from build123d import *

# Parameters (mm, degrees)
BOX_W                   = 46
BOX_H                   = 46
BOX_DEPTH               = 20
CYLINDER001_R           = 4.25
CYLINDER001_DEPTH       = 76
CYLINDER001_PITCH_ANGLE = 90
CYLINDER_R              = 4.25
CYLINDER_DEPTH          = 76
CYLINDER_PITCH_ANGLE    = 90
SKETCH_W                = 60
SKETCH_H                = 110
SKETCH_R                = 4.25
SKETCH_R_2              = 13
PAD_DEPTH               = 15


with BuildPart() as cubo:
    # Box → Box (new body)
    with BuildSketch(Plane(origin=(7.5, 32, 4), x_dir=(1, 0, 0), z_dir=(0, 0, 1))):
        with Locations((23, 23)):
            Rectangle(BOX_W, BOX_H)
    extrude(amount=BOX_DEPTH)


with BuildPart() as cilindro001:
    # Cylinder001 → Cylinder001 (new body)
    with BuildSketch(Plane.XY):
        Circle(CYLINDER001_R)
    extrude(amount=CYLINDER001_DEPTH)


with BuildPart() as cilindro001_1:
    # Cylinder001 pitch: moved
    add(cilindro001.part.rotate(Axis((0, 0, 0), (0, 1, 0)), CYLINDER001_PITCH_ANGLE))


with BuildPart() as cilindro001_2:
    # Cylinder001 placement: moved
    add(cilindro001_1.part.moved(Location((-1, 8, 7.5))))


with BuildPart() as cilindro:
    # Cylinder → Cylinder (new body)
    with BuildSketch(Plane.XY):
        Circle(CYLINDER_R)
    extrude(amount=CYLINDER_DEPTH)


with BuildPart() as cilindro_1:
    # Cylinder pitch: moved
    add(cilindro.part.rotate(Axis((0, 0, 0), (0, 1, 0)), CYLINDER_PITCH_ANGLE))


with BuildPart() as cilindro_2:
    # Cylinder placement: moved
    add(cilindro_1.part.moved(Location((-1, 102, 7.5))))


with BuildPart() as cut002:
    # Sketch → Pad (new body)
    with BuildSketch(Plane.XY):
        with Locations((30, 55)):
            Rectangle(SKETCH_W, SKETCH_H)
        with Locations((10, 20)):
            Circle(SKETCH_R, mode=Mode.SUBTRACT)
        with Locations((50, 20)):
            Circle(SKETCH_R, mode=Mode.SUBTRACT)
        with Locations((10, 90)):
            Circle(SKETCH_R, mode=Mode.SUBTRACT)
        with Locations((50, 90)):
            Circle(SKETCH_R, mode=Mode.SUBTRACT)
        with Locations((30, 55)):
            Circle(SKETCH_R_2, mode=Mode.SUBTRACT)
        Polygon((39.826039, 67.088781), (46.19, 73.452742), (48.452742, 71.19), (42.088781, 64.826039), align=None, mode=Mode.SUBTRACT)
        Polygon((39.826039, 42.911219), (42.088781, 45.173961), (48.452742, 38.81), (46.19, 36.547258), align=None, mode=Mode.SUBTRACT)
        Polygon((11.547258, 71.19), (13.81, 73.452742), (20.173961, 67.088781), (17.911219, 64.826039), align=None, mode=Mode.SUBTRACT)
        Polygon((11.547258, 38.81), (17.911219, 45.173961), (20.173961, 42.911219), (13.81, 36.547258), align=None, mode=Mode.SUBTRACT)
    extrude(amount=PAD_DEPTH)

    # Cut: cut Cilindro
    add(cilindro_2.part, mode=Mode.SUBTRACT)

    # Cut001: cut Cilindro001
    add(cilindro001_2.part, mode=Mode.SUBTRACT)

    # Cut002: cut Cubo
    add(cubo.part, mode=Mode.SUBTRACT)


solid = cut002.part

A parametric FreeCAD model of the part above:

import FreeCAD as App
import Part
import Sketcher

V = App.Vector
Q = App.Units.Quantity

doc = App.newDocument("Part")
params = doc.addObject("Spreadsheet::Sheet", "Params")
for row, (alias, value) in enumerate([
    ("sketch1_width", "46 mm"),
    ("pad1_length", "20 mm"),
    ("sketch2_diameter", "8.5 mm"),
    ("pad2_length", "76 mm"),
    ("sketch3_diameter", "8.5 mm"),
    ("pad3_length", "76 mm"),
    ("sketch4_diameter", "26 mm"),
    ("sketch4_diameter2", "8.5 mm"),
    ("sketch4_width", "60 mm"),
    ("sketch4_height", "110 mm"),
    ("sketch4_length", "9 mm"),
    ("pad4_length", "15 mm"),
], start=1):
    params.set(f"A{row}", alias)
    params.set(f"B{row}", "=" + value)
    params.setAlias(f"B{row}", alias)

body = doc.addObject("PartDesign::Body", "Body")

# Sketch on XY plane
sketch1 = body.newObject("Sketcher::SketchObject", "Sketch")
sketch1.AttachmentSupport = (doc.getObject("XY_Plane"), [""])
sketch1.MapMode = "FlatFace"
sketch1.AttachmentOffset = App.Placement(V(0, 0, 4), App.Rotation())
sketch1.addGeometry([
    Part.LineSegment(V(8, 78, 0), V(8, 32, 0)),
    Part.LineSegment(V(8, 32, 0), V(54, 32, 0)),
    Part.LineSegment(V(54, 32, 0), V(54, 78, 0)),
    Part.LineSegment(V(54, 78, 0), V(8, 78, 0)),
], False)
sketch1.addConstraint([
    Sketcher.Constraint("Coincident", 0, 2, 1, 1),
    Sketcher.Constraint("Coincident", 1, 2, 2, 1),
    Sketcher.Constraint("Coincident", 2, 2, 3, 1),
    Sketcher.Constraint("Coincident", 3, 2, 0, 1),
    Sketcher.Constraint("Vertical", 0),
    Sketcher.Constraint("Horizontal", 1),
    Sketcher.Constraint("Vertical", 2),
    Sketcher.Constraint("Horizontal", 3),
    Sketcher.Constraint("Equal", 3, 0),
    Sketcher.Constraint("DistanceX", 1, 1, 1, 2, Q("46 mm")),
    Sketcher.Constraint("DistanceY", -1, 1, 0, 2, Q("32 mm")),
    Sketcher.Constraint("DistanceX", -1, 1, 0, 2, Q("7.5 mm")),
])
sketch1.setExpression("Constraints[9]", "Params.sketch1_width")
pad1 = body.newObject("PartDesign::Pad", "Pad")
pad1.Profile = sketch1
pad1.setExpression("Length", "Params.pad1_length")
body2 = doc.addObject("PartDesign::Body", "Body001")

# Sketch on XY plane
sketch2 = body2.newObject("Sketcher::SketchObject", "Sketch001")
sketch2.AttachmentSupport = (doc.getObject("XY_Plane001"), [""])
sketch2.MapMode = "FlatFace"
sketch2.addGeometry(Part.Circle(V(0, 0, 0), V(0, 0, 1), 4.2), False)
sketch2.addConstraint([
    Sketcher.Constraint("Coincident", 0, 3, -1, 1),
    Sketcher.Constraint("Diameter", 0, Q("8.5 mm")),
])
sketch2.setExpression("Constraints[1]", "Params.sketch2_diameter")
pad2 = body2.newObject("PartDesign::Pad", "Pad001")
pad2.Profile = sketch2
pad2.setExpression("Length", "Params.pad2_length")
body3 = doc.addObject("PartDesign::Body", "Body002")
doc.recompute()

body2.Placement = App.Placement(V(0, 0, 0), App.Rotation(V(0, 1, 0), 90))
boolean = body3.newObject("PartDesign::Boolean", "Boolean")
boolean.Type = "Fuse"
boolean.addObjects([body2])
body4 = doc.addObject("PartDesign::Body", "Body003")
doc.recompute()

body3.Placement = App.Placement(V(-1, 8, 7.5), App.Rotation(V(0, 0, 1), 0))
boolean2 = body4.newObject("PartDesign::Boolean", "Boolean001")
boolean2.Type = "Fuse"
boolean2.addObjects([body3])
body5 = doc.addObject("PartDesign::Body", "Body004")

# Sketch on XY plane
sketch3 = body5.newObject("Sketcher::SketchObject", "Sketch002")
sketch3.AttachmentSupport = (doc.getObject("XY_Plane004"), [""])
sketch3.MapMode = "FlatFace"
sketch3.addGeometry(Part.Circle(V(0, 0, 0), V(0, 0, 1), 4.2), False)
sketch3.addConstraint([
    Sketcher.Constraint("Coincident", 0, 3, -1, 1),
    Sketcher.Constraint("Diameter", 0, Q("8.5 mm")),
])
sketch3.setExpression("Constraints[1]", "Params.sketch3_diameter")
pad3 = body5.newObject("PartDesign::Pad", "Pad002")
pad3.Profile = sketch3
pad3.setExpression("Length", "Params.pad3_length")
body6 = doc.addObject("PartDesign::Body", "Body005")
doc.recompute()

body5.Placement = App.Placement(V(0, 0, 0), App.Rotation(V(0, 1, 0), 90))
boolean3 = body6.newObject("PartDesign::Boolean", "Boolean002")
boolean3.Type = "Fuse"
boolean3.addObjects([body5])
body7 = doc.addObject("PartDesign::Body", "Body006")
doc.recompute()

body6.Placement = App.Placement(V(-1, 102, 7.5), App.Rotation(V(0, 0, 1), 0))
boolean4 = body7.newObject("PartDesign::Boolean", "Boolean003")
boolean4.Type = "Fuse"
boolean4.addObjects([body6])
body8 = doc.addObject("PartDesign::Body", "Body007")

# Sketch on XY plane
sketch4 = body8.newObject("Sketcher::SketchObject", "Sketch003")
sketch4.AttachmentSupport = (doc.getObject("XY_Plane007"), [""])
sketch4.MapMode = "FlatFace"
sketch4.addGeometry([
    Part.LineSegment(V(0, 110, 0), V(0, 0, 0)),  # 0
    Part.LineSegment(V(0, 0, 0), V(60, 0, 0)),  # 1
    Part.LineSegment(V(60, 0, 0), V(60, 110, 0)),  # 2
    Part.LineSegment(V(60, 110, 0), V(0, 110, 0)),  # 3
    Part.Circle(V(10, 20, 0), V(0, 0, 1), 4.2),  # 4
    Part.LineSegment(V(13.8, 36.5, 0), V(11.5, 38.8, 0)),  # 5
    Part.LineSegment(V(11.5, 38.8, 0), V(17.9, 45.2, 0)),  # 6
    Part.LineSegment(V(17.9, 45.2, 0), V(20.2, 42.9, 0)),  # 7
    Part.LineSegment(V(20.2, 42.9, 0), V(13.8, 36.5, 0)),  # 8
    Part.Circle(V(50, 20, 0), V(0, 0, 1), 4.2),  # 9
    Part.LineSegment(V(46.2, 36.5, 0), V(39.8, 42.9, 0)),  # 10
    Part.LineSegment(V(39.8, 42.9, 0), V(42.1, 45.2, 0)),  # 11
    Part.LineSegment(V(42.1, 45.2, 0), V(48.5, 38.8, 0)),  # 12
    Part.LineSegment(V(48.5, 38.8, 0), V(46.2, 36.5, 0)),  # 13
    Part.LineSegment(V(17.9, 64.8, 0), V(11.5, 71.2, 0)),  # 14
    Part.LineSegment(V(11.5, 71.2, 0), V(13.8, 73.5, 0)),  # 15
    Part.LineSegment(V(13.8, 73.5, 0), V(20.2, 67.1, 0)),  # 16
    Part.LineSegment(V(20.2, 67.1, 0), V(17.9, 64.8, 0)),  # 17
    Part.Circle(V(10, 90, 0), V(0, 0, 1), 4.2),  # 18
    Part.Circle(V(30, 55, 0), V(0, 0, 1), 13),  # 19
    Part.LineSegment(V(42.1, 64.8, 0), V(39.8, 67.1, 0)),  # 20
    Part.LineSegment(V(39.8, 67.1, 0), V(46.2, 73.5, 0)),  # 21
    Part.LineSegment(V(46.2, 73.5, 0), V(48.5, 71.2, 0)),  # 22
    Part.LineSegment(V(48.5, 71.2, 0), V(42.1, 64.8, 0)),  # 23
    Part.Circle(V(50, 90, 0), V(0, 0, 1), 4.2),  # 24
], False)
sketch4.addConstraint([
    Sketcher.Constraint("Coincident", 0, 2, 1, 1),
    Sketcher.Constraint("Coincident", 1, 2, 2, 1),
    Sketcher.Constraint("Coincident", 2, 2, 3, 1),
    Sketcher.Constraint("Coincident", 3, 2, 0, 1),
    Sketcher.Constraint("Coincident", 5, 2, 6, 1),
    Sketcher.Constraint("Coincident", 6, 2, 7, 1),
    Sketcher.Constraint("Coincident", 7, 2, 8, 1),
    Sketcher.Constraint("Coincident", 8, 2, 5, 1),
    Sketcher.Constraint("Coincident", 10, 2, 11, 1),
    Sketcher.Constraint("Coincident", 11, 2, 12, 1),
    Sketcher.Constraint("Coincident", 12, 2, 13, 1),
    Sketcher.Constraint("Coincident", 13, 2, 10, 1),
    Sketcher.Constraint("Coincident", 14, 2, 15, 1),
    Sketcher.Constraint("Coincident", 15, 2, 16, 1),
    Sketcher.Constraint("Coincident", 16, 2, 17, 1),
    Sketcher.Constraint("Coincident", 17, 2, 14, 1),
    Sketcher.Constraint("Coincident", 20, 2, 21, 1),
    Sketcher.Constraint("Coincident", 21, 2, 22, 1),
    Sketcher.Constraint("Coincident", 22, 2, 23, 1),
    Sketcher.Constraint("Coincident", 23, 2, 20, 1),
    Sketcher.Constraint("Vertical", 0),
    Sketcher.Constraint("Horizontal", 1),
    Sketcher.Constraint("Vertical", 2),
    Sketcher.Constraint("Horizontal", 3),
    Sketcher.Constraint("Coincident", 0, 2, -1, 1),
    Sketcher.Constraint("Equal", 4, 9),
    Sketcher.Constraint("Equal", 9, 18),
    Sketcher.Constraint("Equal", 18, 24),
    Sketcher.Constraint("Perpendicular", 5, 6),
    Sketcher.Constraint("Perpendicular", 6, 7),
    Sketcher.Constraint("Perpendicular", 7, 8),
    Sketcher.Constraint("Perpendicular", 8, 10),
    Sketcher.Constraint("Perpendicular", 10, 11),
    Sketcher.Constraint("Perpendicular", 11, 12),
    Sketcher.Constraint("Perpendicular", 12, 13),
    Sketcher.Constraint("Perpendicular", 13, 14),
    Sketcher.Constraint("Perpendicular", 14, 15),
    Sketcher.Constraint("Perpendicular", 15, 16),
    Sketcher.Constraint("Perpendicular", 16, 17),
    Sketcher.Constraint("Perpendicular", 17, 20),
    Sketcher.Constraint("Perpendicular", 20, 21),
    Sketcher.Constraint("Perpendicular", 21, 22),
    Sketcher.Constraint("Perpendicular", 22, 23),
    Sketcher.Constraint("Horizontal", 4, 3, 9, 3),
    Sketcher.Constraint("Horizontal", 18, 3, 24, 3),
    Sketcher.Constraint("Horizontal", 7, 2, 10, 2),
    Sketcher.Constraint("Horizontal", 6, 2, 11, 2),
    Sketcher.Constraint("Horizontal", 5, 2, 12, 2),
    Sketcher.Constraint("Horizontal", 16, 2, 20, 2),
    Sketcher.Constraint("Horizontal", 15, 2, 21, 2),
    Sketcher.Constraint("Horizontal", 14, 2, 22, 2),
    Sketcher.Constraint("Vertical", 4, 3, 18, 3),
    Sketcher.Constraint("Vertical", 9, 3, 24, 3),
    Sketcher.Constraint("Vertical", 5, 2, 14, 2),
    Sketcher.Constraint("Vertical", 8, 2, 15, 2),
    Sketcher.Constraint("Vertical", 7, 2, 16, 2),
    Sketcher.Constraint("Vertical", 10, 2, 20, 2),
    Sketcher.Constraint("Vertical", 13, 2, 21, 2),
    Sketcher.Constraint("Diameter", 19, Q("26 mm")),
    Sketcher.Constraint("Diameter", 4, Q("8.5 mm")),
    Sketcher.Constraint("DistanceX", 1, 1, 1, 2, Q("60 mm")),
    Sketcher.Constraint("DistanceY", 0, 2, 0, 1, Q("110 mm")),
    Sketcher.Constraint("Distance", 6, Q("9 mm")),
    Sketcher.Constraint("DistanceX", -1, 1, 4, 3, Q("10 mm")),
    Sketcher.Constraint("DistanceY", -1, 1, 4, 3, Q("20 mm")),
    Sketcher.Constraint("DistanceX", -1, 1, 9, 3, Q("50 mm")),
    Sketcher.Constraint("DistanceY", -1, 1, 18, 3, Q("90 mm")),
    Sketcher.Constraint("DistanceX", -1, 1, 19, 3, Q("30 mm")),
    Sketcher.Constraint("DistanceY", -1, 1, 19, 3, Q("55 mm")),
    Sketcher.Constraint("Distance", 5, Q("3.2 mm")),
    Sketcher.Constraint("DistanceY", -1, 1, 5, 2, Q("38.81 mm")),
    Sketcher.Constraint("DistanceX", -1, 1, 8, 2, Q("13.81 mm")),
    Sketcher.Constraint("DistanceX", -1, 1, 13, 2, Q("46.19 mm")),
    Sketcher.Constraint("DistanceY", -1, 1, 14, 2, Q("71.19 mm")),
])
sketch4.setExpression("Constraints[58]", "Params.sketch4_diameter")
sketch4.setExpression("Constraints[59]", "Params.sketch4_diameter2")
sketch4.setExpression("Constraints[60]", "Params.sketch4_width")
sketch4.setExpression("Constraints[61]", "Params.sketch4_height")
sketch4.setExpression("Constraints[62]", "Params.sketch4_length")
pad4 = body8.newObject("PartDesign::Pad", "Pad003")
pad4.Profile = sketch4
pad4.setExpression("Length", "Params.pad4_length")
doc.recompute()

boolean5 = body8.newObject("PartDesign::Boolean", "Boolean004")
boolean5.Type = "Cut"
boolean5.addObjects([body7])
doc.recompute()

boolean6 = body8.newObject("PartDesign::Boolean", "Boolean005")
boolean6.Type = "Cut"
boolean6.addObjects([body4])
doc.recompute()

boolean7 = body8.newObject("PartDesign::Boolean", "Boolean006")
boolean7.Type = "Cut"
boolean7.addObjects([body])

doc.recompute()
